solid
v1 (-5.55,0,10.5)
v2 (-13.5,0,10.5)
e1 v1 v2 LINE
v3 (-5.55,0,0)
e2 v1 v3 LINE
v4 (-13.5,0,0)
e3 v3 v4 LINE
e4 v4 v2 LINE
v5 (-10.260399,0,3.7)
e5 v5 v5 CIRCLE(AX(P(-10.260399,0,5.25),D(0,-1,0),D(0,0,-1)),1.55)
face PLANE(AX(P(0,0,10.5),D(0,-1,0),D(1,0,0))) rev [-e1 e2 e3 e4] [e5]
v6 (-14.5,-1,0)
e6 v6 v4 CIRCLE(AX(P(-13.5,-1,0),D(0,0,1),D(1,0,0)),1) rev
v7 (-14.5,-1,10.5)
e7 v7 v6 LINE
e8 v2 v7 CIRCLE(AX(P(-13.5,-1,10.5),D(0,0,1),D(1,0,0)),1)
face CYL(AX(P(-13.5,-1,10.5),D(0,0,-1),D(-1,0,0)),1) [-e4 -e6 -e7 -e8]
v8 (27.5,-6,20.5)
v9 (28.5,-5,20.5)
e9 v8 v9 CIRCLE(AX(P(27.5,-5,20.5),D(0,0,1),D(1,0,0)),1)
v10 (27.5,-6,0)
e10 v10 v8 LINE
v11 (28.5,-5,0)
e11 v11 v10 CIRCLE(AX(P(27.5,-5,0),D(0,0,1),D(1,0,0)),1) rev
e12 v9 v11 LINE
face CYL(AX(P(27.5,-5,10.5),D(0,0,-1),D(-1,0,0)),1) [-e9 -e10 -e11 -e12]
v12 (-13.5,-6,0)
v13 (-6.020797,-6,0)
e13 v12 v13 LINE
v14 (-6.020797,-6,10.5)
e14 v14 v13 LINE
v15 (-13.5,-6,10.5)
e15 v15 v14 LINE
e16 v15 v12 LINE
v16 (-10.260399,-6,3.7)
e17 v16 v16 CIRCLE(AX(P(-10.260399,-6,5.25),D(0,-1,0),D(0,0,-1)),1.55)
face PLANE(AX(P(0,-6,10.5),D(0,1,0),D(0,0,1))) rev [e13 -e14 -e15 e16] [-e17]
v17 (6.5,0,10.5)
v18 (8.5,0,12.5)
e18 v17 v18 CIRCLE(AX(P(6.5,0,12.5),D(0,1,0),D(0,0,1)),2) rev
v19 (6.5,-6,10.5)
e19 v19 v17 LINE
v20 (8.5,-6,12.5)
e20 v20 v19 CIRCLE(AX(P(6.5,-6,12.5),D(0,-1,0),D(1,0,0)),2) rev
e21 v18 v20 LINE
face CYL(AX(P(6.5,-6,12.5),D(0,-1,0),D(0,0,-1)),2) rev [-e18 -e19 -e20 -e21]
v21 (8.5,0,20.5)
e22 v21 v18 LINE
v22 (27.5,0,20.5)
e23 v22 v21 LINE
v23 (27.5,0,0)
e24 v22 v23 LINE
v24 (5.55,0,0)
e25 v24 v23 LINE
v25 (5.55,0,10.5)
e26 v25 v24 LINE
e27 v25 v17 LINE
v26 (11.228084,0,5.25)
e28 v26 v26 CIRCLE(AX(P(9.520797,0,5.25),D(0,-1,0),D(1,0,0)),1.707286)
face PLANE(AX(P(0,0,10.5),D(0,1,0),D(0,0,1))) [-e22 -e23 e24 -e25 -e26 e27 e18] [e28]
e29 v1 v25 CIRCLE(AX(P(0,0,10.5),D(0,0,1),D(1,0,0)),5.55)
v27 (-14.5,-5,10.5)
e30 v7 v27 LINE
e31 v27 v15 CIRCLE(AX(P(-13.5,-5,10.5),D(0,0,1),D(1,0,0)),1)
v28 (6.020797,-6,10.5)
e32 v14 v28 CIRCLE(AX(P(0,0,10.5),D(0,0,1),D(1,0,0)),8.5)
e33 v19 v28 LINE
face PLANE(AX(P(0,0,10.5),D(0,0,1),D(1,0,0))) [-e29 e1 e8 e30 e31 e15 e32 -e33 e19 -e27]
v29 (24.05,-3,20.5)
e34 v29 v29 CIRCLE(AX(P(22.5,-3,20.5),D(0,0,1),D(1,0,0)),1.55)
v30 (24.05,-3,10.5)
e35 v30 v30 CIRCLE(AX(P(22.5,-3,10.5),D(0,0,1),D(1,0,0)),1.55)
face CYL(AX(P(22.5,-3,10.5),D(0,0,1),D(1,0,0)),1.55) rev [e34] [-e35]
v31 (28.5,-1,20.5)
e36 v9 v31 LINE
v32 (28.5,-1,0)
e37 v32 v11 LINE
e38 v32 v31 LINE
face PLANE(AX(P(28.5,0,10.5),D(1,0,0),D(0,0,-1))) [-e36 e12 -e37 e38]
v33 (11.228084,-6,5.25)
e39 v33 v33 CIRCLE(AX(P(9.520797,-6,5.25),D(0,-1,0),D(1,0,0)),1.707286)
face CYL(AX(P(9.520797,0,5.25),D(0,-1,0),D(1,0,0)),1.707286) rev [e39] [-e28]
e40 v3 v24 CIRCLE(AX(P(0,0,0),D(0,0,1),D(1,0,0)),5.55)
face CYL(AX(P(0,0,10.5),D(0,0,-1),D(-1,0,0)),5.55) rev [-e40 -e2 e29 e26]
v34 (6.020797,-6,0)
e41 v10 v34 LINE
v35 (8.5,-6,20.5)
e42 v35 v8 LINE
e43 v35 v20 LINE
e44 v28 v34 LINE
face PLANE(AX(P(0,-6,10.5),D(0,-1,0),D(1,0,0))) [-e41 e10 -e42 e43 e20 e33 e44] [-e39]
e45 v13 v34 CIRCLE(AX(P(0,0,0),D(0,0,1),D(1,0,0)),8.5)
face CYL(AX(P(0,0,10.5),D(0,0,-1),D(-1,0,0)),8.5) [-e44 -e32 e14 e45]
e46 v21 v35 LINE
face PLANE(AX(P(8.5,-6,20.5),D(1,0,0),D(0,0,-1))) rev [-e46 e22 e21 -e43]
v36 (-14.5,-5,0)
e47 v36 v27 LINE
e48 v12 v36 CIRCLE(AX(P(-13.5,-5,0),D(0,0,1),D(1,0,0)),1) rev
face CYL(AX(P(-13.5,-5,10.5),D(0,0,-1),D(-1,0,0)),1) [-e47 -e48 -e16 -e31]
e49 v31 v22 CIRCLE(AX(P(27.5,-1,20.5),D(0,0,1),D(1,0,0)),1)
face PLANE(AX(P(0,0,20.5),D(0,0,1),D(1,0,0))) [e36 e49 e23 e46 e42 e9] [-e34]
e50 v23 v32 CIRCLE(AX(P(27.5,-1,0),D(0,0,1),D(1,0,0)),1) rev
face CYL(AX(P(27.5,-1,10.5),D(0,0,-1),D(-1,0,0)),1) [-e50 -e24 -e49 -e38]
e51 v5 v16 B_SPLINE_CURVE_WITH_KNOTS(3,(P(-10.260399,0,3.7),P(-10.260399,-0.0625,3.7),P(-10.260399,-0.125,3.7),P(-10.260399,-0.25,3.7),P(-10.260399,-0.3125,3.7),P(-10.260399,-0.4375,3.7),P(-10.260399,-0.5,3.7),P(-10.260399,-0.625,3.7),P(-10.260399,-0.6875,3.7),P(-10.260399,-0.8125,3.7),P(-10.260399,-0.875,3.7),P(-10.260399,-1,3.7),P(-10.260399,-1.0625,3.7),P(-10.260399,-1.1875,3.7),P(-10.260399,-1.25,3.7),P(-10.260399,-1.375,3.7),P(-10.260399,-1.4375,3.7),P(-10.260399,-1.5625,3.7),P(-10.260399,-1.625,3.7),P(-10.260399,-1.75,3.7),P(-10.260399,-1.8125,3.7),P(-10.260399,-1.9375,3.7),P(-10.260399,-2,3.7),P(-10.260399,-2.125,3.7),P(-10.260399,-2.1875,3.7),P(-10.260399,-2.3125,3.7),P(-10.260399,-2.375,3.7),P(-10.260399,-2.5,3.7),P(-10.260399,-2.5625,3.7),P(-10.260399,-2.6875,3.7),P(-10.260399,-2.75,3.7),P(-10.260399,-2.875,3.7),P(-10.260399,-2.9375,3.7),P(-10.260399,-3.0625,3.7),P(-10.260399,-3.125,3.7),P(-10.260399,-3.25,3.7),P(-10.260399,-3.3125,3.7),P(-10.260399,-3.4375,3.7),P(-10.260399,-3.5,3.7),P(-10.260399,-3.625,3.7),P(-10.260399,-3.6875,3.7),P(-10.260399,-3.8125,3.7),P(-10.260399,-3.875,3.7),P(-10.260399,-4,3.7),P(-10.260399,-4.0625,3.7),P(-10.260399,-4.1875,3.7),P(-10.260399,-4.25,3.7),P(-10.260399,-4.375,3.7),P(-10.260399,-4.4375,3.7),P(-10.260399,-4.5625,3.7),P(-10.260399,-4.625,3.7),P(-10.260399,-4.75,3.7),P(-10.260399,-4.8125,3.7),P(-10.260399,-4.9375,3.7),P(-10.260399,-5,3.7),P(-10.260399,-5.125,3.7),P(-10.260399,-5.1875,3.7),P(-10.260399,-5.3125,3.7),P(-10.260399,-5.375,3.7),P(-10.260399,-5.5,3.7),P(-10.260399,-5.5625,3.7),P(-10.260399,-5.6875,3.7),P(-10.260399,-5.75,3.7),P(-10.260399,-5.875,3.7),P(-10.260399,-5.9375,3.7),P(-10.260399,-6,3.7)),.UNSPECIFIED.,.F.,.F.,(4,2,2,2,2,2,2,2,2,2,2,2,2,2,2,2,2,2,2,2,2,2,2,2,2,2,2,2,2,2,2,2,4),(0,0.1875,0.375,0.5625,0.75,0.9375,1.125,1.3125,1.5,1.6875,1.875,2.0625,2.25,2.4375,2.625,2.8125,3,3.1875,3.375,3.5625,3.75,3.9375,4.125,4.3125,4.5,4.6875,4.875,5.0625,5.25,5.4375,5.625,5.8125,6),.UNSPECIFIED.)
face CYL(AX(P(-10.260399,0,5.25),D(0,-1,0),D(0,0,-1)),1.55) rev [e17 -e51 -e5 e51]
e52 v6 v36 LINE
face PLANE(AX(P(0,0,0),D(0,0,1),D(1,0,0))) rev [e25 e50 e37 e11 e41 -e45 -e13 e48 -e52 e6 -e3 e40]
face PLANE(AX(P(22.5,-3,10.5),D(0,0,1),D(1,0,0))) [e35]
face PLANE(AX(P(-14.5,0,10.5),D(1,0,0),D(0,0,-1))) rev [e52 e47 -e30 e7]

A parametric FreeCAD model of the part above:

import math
import FreeCAD as App
import Part
import Sketcher
Q = App.Units.Quantity


def edges_at(feature, points):
    """Names of the edges that pass closest to the given points."""
    edges = feature.Shape.Edges
    near = lambda p: min(range(len(edges)), key=lambda i: edges[i].distToShape(Part.Vertex(*p))[0])
    return sorted({f"Edge{near(p) + 1}" for p in points})


def add_polygon(sketch, points):
    """Adds a closed chain of lines whose ends are joined by coincident constraints."""
    first, n = sketch.GeometryCount, len(points)
    for a, b in zip(points, points[1:] + points[:1]):
        sketch.addGeometry(Part.LineSegment(App.Vector(*a, 0), App.Vector(*b, 0)), False)
    for i in range(n):
        sketch.addConstraint(Sketcher.Constraint("Coincident", first + i, 2, first + (i + 1) % n, 1))

doc = App.newDocument("Part")
body = doc.addObject("PartDesign::Body", "Body")

# Sketch on XY plane
sketch1 = doc.addObject("Sketcher::SketchObject", "Sketch")
body.addObject(sketch1)
sketch1.AttachmentSupport = (doc.XY_Plane, [""])
sketch1.MapMode = "FlatFace"
sketch1.addGeometry([
    Part.LineSegment(App.Vector(-14, 0, 0), App.Vector(-14, -6, 0)),  # 0
    Part.LineSegment(App.Vector(-14, -6, 0), App.Vector(-6, -6, 0)),  # 1
    Part.ArcOfCircle(Part.Circle(App.Vector(0, 0, 0), App.Vector(0, 0, 1), 8), math.radians(-135), math.radians(-45)),  # 2
    Part.LineSegment(App.Vector(6, -6, 0), App.Vector(28, -6, 0)),  # 3
    Part.LineSegment(App.Vector(28, -6, 0), App.Vector(28, 0, 0)),  # 4
    Part.LineSegment(App.Vector(28, 0, 0), App.Vector(6, 0, 0)),  # 5
    Part.ArcOfCircle(Part.Circle(App.Vector(0, 0, 0), App.Vector(0, 0, 1), 6), math.radians(180), math.radians(360)),  # 6
    Part.LineSegment(App.Vector(-6, 0, 0), App.Vector(-14, 0, 0)),  # 7
], False)
sketch1.addConstraint([
    Sketcher.Constraint("Coincident", 0, 2, 1, 1),
    Sketcher.Constraint("Coincident", 1, 2, 2, 1),
    Sketcher.Constraint("Coincident", 2, 2, 3, 1),
    Sketcher.Constraint("Coincident", 3, 2, 4, 1),
    Sketcher.Constraint("Coincident", 4, 2, 5, 1),
    Sketcher.Constraint("Coincident", 5, 2, 6, 2),
    Sketcher.Constraint("Coincident", 6, 1, 7, 1),
    Sketcher.Constraint("Coincident", 7, 2, 0, 1),
    Sketcher.Constraint("Vertical", 0),
    Sketcher.Constraint("Horizontal", 1),
    Sketcher.Constraint("Horizontal", 3),
    Sketcher.Constraint("Vertical", 4),
    Sketcher.Constraint("Horizontal", 5),
    Sketcher.Constraint("Horizontal", 7),
    Sketcher.Constraint("Coincident", 2, 3, -1, 1),
    Sketcher.Constraint("Coincident", 6, 3, -1, 1),
    Sketcher.Constraint("PointOnObject", 4, 2, -1),
    Sketcher.Constraint("PointOnObject", 6, 1, -1),
    Sketcher.Constraint("Horizontal", 1, 2, 2, 2),
    Sketcher.Constraint("Radius", 2, Q("8.5 mm")),
    Sketcher.Constraint("DistanceY", 0, 2, 0, 1, Q("6 mm")),
    Sketcher.Constraint("Radius", 6, Q("5.55 mm")),
    Sketcher.Constraint("DistanceX", 0, 2, 3, 2, Q("43 mm")),
    Sketcher.Constraint("DistanceX", 5, 2, 5, 1, Q("22.95 mm")),
])
pad1 = doc.addObject("PartDesign::Pad", "Pad")
body.addObject(pad1)
pad1.Profile = sketch1
pad1.Length = 10.5

# Sketch on XZ plane
sketch2 = doc.addObject("Sketcher::SketchObject", "Sketch001")
body.addObject(sketch2)
sketch2.AttachmentSupport = (doc.XZ_Plane, [""])
sketch2.MapMode = "FlatFace"
sketch2.AttachmentOffset = App.Placement(App.Vector(0, 0, 6), App.Rotation())
sketch2.addGeometry(Part.Circle(App.Vector(-10.3, 5.2, 0), App.Vector(0, 0, 1), 1.6), False)
sketch2.addConstraint([
    Sketcher.Constraint("Diameter", 0, Q("3.1 mm")),
    Sketcher.Constraint("DistanceY", -1, 1, 0, 3, Q("5.25 mm")),
    Sketcher.Constraint("DistanceX", 0, 3, -1, 1, Q("10.260399 mm")),
])
pocket1 = doc.addObject("PartDesign::Pocket", "Pocket")
body.addObject(pocket1)
pocket1.Profile = sketch2
pocket1.Type = "ThroughAll"

# Sketch on XZ plane
sketch3 = doc.addObject("Sketcher::SketchObject", "Sketch002")
body.addObject(sketch3)
sketch3.AttachmentSupport = (doc.XZ_Plane, [""])
sketch3.MapMode = "FlatFace"
sketch3.AttachmentOffset = App.Placement(App.Vector(0, 0, 6), App.Rotation())
sketch3.addGeometry(Part.Circle(App.Vector(9.5, 5.2, 0), App.Vector(0, 0, 1), 1.7), False)
sketch3.addConstraint([
    Sketcher.Constraint("DistanceY", -1, 1, 0, 3, Q("5.25 mm")),
    Sketcher.Constraint("Diameter", 0, Q("3.414573 mm")),
    Sketcher.Constraint("DistanceX", -1, 1, 0, 3, Q("9.520797 mm")),
])
pocket2 = doc.addObject("PartDesign::Pocket", "Pocket001")
body.addObject(pocket2)
pocket2.Profile = sketch3
pocket2.Type = "ThroughAll"

# Sketch on XY plane
sketch4 = doc.addObject("Sketcher::SketchObject", "Sketch003")
body.addObject(sketch4)
sketch4.AttachmentSupport = (doc.XY_Plane, [""])
sketch4.MapMode = "FlatFace"
sketch4.AttachmentOffset = App.Placement(App.Vector(0, 0, 10.5), App.Rotation())
add_polygon(sketch4, [(8, 0), (8, -6), (28, -6), (28, 0)])  # lines 0-3
sketch4.addConstraint([
    Sketcher.Constraint("Vertical", 0),
    Sketcher.Constraint("Horizontal", 1),
    Sketcher.Constraint("Vertical", 2),
    Sketcher.Constraint("Horizontal", 3),
    Sketcher.Constraint("PointOnObject", 2, 2, -1),
    Sketcher.Constraint("DistanceX", 1, 1, 1, 2, Q("20 mm")),
    Sketcher.Constraint("DistanceY", 0, 2, 0, 1, Q("6 mm")),
    Sketcher.Constraint("DistanceX", -1, 1, 0, 2, Q("8.5 mm")),
])
pad2 = doc.addObject("PartDesign::Pad", "Pad001")
body.addObject(pad2)
pad2.Profile = sketch4
pad2.Length = 10

# Sketch on XY plane
sketch5 = doc.addObject("Sketcher::SketchObject", "Sketch004")
body.addObject(sketch5)
sketch5.AttachmentSupport = (doc.XY_Plane, [""])
sketch5.MapMode = "FlatFace"
sketch5.AttachmentOffset = App.Placement(App.Vector(0, 0, 20.5), App.Rotation())
sketch5.addGeometry(Part.Circle(App.Vector(22.5, -3, 0), App.Vector(0, 0, 1), 1.6), False)
sketch5.addConstraint([
    Sketcher.Constraint("Diameter", 0, Q("3.1 mm")),
    Sketcher.Constraint("DistanceY", 0, 3, -1, 1, Q("3 mm")),
    Sketcher.Constraint("DistanceX", -1, 1, 0, 3, Q("22.5 mm")),
])
pocket3 = doc.addObject("PartDesign::Pocket", "Pocket002")
body.addObject(pocket3)
pocket3.Profile = sketch5
pocket3.Length = 10
doc.recompute()

fillet = doc.addObject("PartDesign::Fillet", "Fillet")
body.addObject(fillet)
fillet.Base = (pocket3, edges_at(pocket3, [(8.5, -3, 10.5)]))
fillet.Radius = 2
doc.recompute()

fillet2 = doc.addObject("PartDesign::Fillet", "Fillet001")
body.addObject(fillet2)
fillet2.Base = (fillet, edges_at(fillet, [
    (-14.5, -6, 5.25),
    (-14.5, 0, 5.25),
    (28.5, 0, 10.25),
    (28.5, -6, 10.25),
]))
fillet2.Radius = 1

doc.recompute()
